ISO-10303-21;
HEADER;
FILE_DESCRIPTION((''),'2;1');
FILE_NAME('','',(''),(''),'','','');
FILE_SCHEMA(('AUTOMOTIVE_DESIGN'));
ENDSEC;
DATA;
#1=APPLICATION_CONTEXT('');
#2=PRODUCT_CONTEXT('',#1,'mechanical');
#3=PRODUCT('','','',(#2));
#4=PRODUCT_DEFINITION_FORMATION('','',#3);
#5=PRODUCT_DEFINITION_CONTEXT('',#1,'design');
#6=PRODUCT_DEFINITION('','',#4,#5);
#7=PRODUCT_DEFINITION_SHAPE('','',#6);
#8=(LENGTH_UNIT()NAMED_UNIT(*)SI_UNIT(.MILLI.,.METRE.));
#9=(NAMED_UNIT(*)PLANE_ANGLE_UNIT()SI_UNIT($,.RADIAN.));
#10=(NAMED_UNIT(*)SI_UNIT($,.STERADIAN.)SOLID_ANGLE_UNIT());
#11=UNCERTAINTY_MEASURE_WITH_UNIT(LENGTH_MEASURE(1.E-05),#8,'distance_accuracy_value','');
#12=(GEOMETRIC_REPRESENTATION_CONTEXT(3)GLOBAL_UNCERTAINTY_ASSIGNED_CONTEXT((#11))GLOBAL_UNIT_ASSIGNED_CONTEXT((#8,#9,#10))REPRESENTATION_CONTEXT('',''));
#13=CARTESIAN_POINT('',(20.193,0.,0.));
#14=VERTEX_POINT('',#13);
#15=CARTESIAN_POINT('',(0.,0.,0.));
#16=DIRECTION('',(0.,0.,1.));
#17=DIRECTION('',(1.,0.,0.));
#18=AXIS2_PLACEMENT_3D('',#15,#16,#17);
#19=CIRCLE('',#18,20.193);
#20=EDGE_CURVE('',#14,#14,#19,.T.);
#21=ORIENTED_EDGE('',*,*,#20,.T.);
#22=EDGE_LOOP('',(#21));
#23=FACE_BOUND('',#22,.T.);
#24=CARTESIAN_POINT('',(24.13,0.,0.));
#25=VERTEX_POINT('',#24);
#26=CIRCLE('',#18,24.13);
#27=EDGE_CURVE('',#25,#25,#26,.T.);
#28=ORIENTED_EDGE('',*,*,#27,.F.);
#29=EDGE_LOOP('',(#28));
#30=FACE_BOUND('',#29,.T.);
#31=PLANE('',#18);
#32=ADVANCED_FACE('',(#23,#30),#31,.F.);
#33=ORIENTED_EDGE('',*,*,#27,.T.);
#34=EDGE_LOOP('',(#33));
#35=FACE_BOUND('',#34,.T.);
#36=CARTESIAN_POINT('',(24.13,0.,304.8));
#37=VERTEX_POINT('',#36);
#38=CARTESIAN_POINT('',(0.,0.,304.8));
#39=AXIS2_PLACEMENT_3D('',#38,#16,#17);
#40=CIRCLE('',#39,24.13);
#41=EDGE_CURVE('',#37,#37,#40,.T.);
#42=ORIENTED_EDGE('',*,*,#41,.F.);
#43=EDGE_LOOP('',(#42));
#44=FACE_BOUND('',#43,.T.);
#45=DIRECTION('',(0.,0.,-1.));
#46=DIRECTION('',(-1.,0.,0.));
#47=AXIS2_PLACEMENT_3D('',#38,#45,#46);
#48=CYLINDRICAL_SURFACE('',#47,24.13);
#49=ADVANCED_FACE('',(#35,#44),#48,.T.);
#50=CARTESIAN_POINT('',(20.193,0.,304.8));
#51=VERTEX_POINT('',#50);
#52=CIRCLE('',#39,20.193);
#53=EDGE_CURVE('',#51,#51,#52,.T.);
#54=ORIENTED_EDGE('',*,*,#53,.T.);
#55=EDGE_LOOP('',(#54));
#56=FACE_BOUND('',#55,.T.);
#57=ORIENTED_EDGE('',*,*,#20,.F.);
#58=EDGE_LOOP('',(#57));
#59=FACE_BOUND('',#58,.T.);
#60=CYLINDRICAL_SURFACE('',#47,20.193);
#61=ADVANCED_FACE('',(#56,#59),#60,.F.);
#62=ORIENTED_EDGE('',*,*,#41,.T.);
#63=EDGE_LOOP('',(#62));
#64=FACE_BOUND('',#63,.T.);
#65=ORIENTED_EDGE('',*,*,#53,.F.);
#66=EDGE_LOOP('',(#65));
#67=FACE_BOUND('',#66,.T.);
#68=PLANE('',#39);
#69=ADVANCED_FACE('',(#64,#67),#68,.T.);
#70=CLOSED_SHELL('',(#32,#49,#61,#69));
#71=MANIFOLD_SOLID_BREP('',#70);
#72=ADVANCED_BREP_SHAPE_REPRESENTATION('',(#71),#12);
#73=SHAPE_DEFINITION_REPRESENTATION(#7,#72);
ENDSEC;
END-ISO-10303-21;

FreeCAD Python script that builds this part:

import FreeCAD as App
import Part
import Sketcher

V = App.Vector
Q = App.Units.Quantity

doc = App.newDocument("Part")
body = doc.addObject("PartDesign::Body", "Body")

sketch1 = doc.addObject("Sketcher::SketchObject", "Sketch")
body.addObject(sketch1)
sketch1.AttachmentSupport = (doc.XY_Plane, [""])
sketch1.MapMode = "FlatFace"
sketch1.addGeometry([
    Part.Circle(V(0, 0, 0), V(0, 0, 1), 24.13),
    Part.Circle(V(0, 0, 0), V(0, 0, 1), 20.193),
], False)
sketch1.addConstraint([
    Sketcher.Constraint("Coincident", 0, 3, -1, 1),
    Sketcher.Constraint("Coincident", 1, 3, -1, 1),
    Sketcher.Constraint("Diameter", 0, Q("1.9 in")),
    Sketcher.Constraint("Diameter", 1, Q("1.59 in")),
])
pad1 = doc.addObject("PartDesign::Pad", "Pad")
body.addObject(pad1)
pad1.Profile = sketch1
pad1.Length = Q("12 in")

doc.recompute()
